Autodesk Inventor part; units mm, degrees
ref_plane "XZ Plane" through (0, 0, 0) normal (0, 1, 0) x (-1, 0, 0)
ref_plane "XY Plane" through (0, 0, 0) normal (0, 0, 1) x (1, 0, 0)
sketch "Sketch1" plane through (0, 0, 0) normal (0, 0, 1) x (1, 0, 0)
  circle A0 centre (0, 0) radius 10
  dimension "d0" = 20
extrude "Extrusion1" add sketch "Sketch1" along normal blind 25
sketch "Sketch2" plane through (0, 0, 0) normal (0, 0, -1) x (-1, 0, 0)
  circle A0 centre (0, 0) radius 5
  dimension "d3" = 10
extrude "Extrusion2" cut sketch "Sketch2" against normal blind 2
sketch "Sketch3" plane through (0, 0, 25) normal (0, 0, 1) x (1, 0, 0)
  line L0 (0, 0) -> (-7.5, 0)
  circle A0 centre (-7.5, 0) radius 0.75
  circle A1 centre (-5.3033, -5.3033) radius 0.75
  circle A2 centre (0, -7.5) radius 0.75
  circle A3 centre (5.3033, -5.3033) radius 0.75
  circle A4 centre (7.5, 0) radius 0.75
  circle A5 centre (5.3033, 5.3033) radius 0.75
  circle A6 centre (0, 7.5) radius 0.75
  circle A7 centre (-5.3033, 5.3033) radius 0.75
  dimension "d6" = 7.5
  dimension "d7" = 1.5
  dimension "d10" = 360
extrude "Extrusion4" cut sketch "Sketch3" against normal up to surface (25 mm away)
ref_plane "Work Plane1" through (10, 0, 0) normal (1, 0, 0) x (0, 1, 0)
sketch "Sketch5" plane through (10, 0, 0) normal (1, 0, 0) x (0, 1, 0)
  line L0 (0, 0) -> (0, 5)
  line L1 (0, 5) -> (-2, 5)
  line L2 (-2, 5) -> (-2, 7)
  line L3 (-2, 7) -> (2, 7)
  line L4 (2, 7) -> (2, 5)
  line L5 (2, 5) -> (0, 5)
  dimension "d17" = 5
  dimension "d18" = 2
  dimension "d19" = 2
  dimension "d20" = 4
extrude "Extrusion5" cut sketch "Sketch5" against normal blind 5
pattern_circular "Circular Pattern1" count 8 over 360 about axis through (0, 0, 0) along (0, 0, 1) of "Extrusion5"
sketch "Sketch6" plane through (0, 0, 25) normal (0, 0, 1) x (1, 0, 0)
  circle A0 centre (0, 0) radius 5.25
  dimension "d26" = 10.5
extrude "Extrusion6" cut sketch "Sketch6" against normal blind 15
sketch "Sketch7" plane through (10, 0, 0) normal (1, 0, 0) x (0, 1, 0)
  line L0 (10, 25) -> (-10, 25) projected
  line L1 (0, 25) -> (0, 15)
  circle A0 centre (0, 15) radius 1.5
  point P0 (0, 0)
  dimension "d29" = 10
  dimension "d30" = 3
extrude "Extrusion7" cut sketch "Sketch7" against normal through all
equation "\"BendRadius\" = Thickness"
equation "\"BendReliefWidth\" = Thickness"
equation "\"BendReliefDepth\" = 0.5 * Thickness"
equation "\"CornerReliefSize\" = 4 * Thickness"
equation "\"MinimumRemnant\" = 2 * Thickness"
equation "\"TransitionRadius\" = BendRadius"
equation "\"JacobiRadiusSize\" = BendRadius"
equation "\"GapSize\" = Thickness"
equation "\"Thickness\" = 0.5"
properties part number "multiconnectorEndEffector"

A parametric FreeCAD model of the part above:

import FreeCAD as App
import Part
import Sketcher

doc = App.newDocument("Part")
body = doc.addObject("PartDesign::Body", "Body")

# Sketch on XY plane
sketch1 = body.newObject("Sketcher::SketchObject", "Sketch")
sketch1.AttachmentSupport = (doc.getObject("XY_Plane"), [""])
sketch1.MapMode = "FlatFace"
sketch1.addGeometry(Part.Circle(App.Vector(0, 0, 0), App.Vector(0, 0, 1), 10), False)
sketch1.addConstraint([
    Sketcher.Constraint("Coincident", 0, 3, -1, 1),
    Sketcher.Constraint("Diameter", 0, 20.0),
])
pad1 = body.newObject("PartDesign::Pad", "Pad")
pad1.Profile = sketch1
pad1.Length = 25

# Sketch on XY plane
sketch2 = body.newObject("Sketcher::SketchObject", "Sketch001")
sketch2.AttachmentSupport = (doc.getObject("XY_Plane"), [""])
sketch2.MapMode = "FlatFace"
sketch2.addGeometry(Part.Circle(App.Vector(0, 0, 0), App.Vector(0, 0, 1), 5), False)
sketch2.addConstraint([
    Sketcher.Constraint("Coincident", 0, 3, -1, 1),
    Sketcher.Constraint("Diameter", 0, 10.0),
])
pocket1 = body.newObject("PartDesign::Pocket", "Pocket")
pocket1.Profile = sketch2
pocket1.Length = 2
pocket1.Reversed = True

# Sketch on XY plane
sketch3 = body.newObject("Sketcher::SketchObject", "Sketch002")
sketch3.AttachmentSupport = (doc.getObject("XY_Plane"), [""])
sketch3.MapMode = "FlatFace"
sketch3.AttachmentOffset = App.Placement(App.Vector(0, 0, 25), App.Rotation())
sketch3.addGeometry([
    Part.Circle(App.Vector(-7.5, 0, 0), App.Vector(0, 0, 1), 0.8),  # 0
    Part.Circle(App.Vector(-5.3, -5.3, 0), App.Vector(0, 0, 1), 0.8),  # 1
    Part.Circle(App.Vector(0, -7.5, 0), App.Vector(0, 0, 1), 0.8),  # 2
    Part.Circle(App.Vector(5.3, -5.3, 0), App.Vector(0, 0, 1), 0.8),  # 3
    Part.Circle(App.Vector(7.5, 0, 0), App.Vector(0, 0, 1), 0.8),  # 4
    Part.Circle(App.Vector(5.3, 5.3, 0), App.Vector(0, 0, 1), 0.8),  # 5
    Part.Circle(App.Vector(0, 7.5, 0), App.Vector(0, 0, 1), 0.8),  # 6
    Part.Circle(App.Vector(-5.3, 5.3, 0), App.Vector(0, 0, 1), 0.8),  # 7
], False)
sketch3.addConstraint([
    Sketcher.Constraint("Equal", 0, 1),
    Sketcher.Constraint("Equal", 1, 2),
    Sketcher.Constraint("Equal", 2, 3),
    Sketcher.Constraint("Equal", 3, 4),
    Sketcher.Constraint("Equal", 4, 5),
    Sketcher.Constraint("Equal", 5, 6),
    Sketcher.Constraint("Equal", 6, 7),
    Sketcher.Constraint("Symmetric", 0, 3, 4, 3, -1, 1),
    Sketcher.Constraint("Symmetric", 1, 3, 5, 3, -1, 1),
    Sketcher.Constraint("Symmetric", 2, 3, 6, 3, -1, 1),
    Sketcher.Constraint("Symmetric", 3, 3, 7, 3, -1, 1),
    Sketcher.Constraint("Symmetric", 1, 3, 3, 3, -2),
    Sketcher.Constraint("PointOnObject", 0, 3, -1),
    Sketcher.Constraint("PointOnObject", 2, 3, -2),
    Sketcher.Constraint("Diameter", 0, 1.5),
    Sketcher.Constraint("DistanceX", 0, 3, -1, 1, 7.5),
    Sketcher.Constraint("DistanceY", 2, 3, -1, 1, 7.5),
    Sketcher.Constraint("DistanceX", 1, 3, -1, 1, 5.3033),
    Sketcher.Constraint("DistanceY", 1, 3, -1, 1, 5.3033),
])
pocket2 = body.newObject("PartDesign::Pocket", "Pocket001")
pocket2.Profile = sketch3
pocket2.Length = 25

# Sketch on YZ plane
sketch4 = body.newObject("Sketcher::SketchObject", "Sketch003")
sketch4.AttachmentSupport = (doc.getObject("YZ_Plane"), [""])
sketch4.MapMode = "FlatFace"
sketch4.AttachmentOffset = App.Placement(App.Vector(0, 0, 10), App.Rotation())
sketch4.addGeometry([
    Part.LineSegment(App.Vector(-2, 5, 0), App.Vector(2, 5, 0)),
    Part.LineSegment(App.Vector(2, 5, 0), App.Vector(2, 7, 0)),
    Part.LineSegment(App.Vector(2, 7, 0), App.Vector(-2, 7, 0)),
    Part.LineSegment(App.Vector(-2, 7, 0), App.Vector(-2, 5, 0)),
], False)
sketch4.addConstraint([
    Sketcher.Constraint("Coincident", 0, 2, 1, 1),
    Sketcher.Constraint("Coincident", 1, 2, 2, 1),
    Sketcher.Constraint("Coincident", 2, 2, 3, 1),
    Sketcher.Constraint("Coincident", 3, 2, 0, 1),
    Sketcher.Constraint("Horizontal", 0),
    Sketcher.Constraint("Vertical", 1),
    Sketcher.Constraint("Horizontal", 2),
    Sketcher.Constraint("Vertical", 3),
    Sketcher.Constraint("DistanceX", 0, 1, 0, 2, 4.0),
    Sketcher.Constraint("DistanceY", 1, 1, 1, 2, 2.0),
    Sketcher.Constraint("DistanceX", -1, 1, 0, 2, 2.0),
    Sketcher.Constraint("DistanceY", -1, 1, 0, 2, 5.0),
])
pocket3 = body.newObject("PartDesign::Pocket", "Pocket002")
pocket3.Profile = sketch4
pocket3.Length = 5
doc.recompute()

polarpattern = body.newObject("PartDesign::PolarPattern", "PolarPattern")
polarpattern.Originals = [pocket3]
polarpattern.Axis = (doc.getObject("Z_Axis"), [""])
polarpattern.Angle = 360
polarpattern.Occurrences = 8
body.Tip = polarpattern

# Sketch on XY plane
sketch5 = body.newObject("Sketcher::SketchObject", "Sketch004")
sketch5.AttachmentSupport = (doc.getObject("XY_Plane"), [""])
sketch5.MapMode = "FlatFace"
sketch5.AttachmentOffset = App.Placement(App.Vector(0, 0, 25), App.Rotation())
sketch5.addGeometry(Part.Circle(App.Vector(0, 0, 0), App.Vector(0, 0, 1), 5), False)
sketch5.addConstraint([
    Sketcher.Constraint("Coincident", 0, 3, -1, 1),
    Sketcher.Constraint("Diameter", 0, 10.5),
])
pocket4 = body.newObject("PartDesign::Pocket", "Pocket003")
pocket4.Profile = sketch5
pocket4.Length = 15

# Sketch on YZ plane
sketch6 = body.newObject("Sketcher::SketchObject", "Sketch005")
sketch6.AttachmentSupport = (doc.getObject("YZ_Plane"), [""])
sketch6.MapMode = "FlatFace"
sketch6.AttachmentOffset = App.Placement(App.Vector(0, 0, 10), App.Rotation())
sketch6.addGeometry(Part.Circle(App.Vector(0, 15, 0), App.Vector(0, 0, 1), 1.5), False)
sketch6.addConstraint([
    Sketcher.Constraint("PointOnObject", 0, 3, -2),
    Sketcher.Constraint("Diameter", 0, 3.0),
    Sketcher.Constraint("DistanceY", -1, 1, 0, 3, 15.0),
])
pocket5 = body.newObject("PartDesign::Pocket", "Pocket004")
pocket5.Profile = sketch6
pocket5.Type = "ThroughAll"

doc.recompute()
